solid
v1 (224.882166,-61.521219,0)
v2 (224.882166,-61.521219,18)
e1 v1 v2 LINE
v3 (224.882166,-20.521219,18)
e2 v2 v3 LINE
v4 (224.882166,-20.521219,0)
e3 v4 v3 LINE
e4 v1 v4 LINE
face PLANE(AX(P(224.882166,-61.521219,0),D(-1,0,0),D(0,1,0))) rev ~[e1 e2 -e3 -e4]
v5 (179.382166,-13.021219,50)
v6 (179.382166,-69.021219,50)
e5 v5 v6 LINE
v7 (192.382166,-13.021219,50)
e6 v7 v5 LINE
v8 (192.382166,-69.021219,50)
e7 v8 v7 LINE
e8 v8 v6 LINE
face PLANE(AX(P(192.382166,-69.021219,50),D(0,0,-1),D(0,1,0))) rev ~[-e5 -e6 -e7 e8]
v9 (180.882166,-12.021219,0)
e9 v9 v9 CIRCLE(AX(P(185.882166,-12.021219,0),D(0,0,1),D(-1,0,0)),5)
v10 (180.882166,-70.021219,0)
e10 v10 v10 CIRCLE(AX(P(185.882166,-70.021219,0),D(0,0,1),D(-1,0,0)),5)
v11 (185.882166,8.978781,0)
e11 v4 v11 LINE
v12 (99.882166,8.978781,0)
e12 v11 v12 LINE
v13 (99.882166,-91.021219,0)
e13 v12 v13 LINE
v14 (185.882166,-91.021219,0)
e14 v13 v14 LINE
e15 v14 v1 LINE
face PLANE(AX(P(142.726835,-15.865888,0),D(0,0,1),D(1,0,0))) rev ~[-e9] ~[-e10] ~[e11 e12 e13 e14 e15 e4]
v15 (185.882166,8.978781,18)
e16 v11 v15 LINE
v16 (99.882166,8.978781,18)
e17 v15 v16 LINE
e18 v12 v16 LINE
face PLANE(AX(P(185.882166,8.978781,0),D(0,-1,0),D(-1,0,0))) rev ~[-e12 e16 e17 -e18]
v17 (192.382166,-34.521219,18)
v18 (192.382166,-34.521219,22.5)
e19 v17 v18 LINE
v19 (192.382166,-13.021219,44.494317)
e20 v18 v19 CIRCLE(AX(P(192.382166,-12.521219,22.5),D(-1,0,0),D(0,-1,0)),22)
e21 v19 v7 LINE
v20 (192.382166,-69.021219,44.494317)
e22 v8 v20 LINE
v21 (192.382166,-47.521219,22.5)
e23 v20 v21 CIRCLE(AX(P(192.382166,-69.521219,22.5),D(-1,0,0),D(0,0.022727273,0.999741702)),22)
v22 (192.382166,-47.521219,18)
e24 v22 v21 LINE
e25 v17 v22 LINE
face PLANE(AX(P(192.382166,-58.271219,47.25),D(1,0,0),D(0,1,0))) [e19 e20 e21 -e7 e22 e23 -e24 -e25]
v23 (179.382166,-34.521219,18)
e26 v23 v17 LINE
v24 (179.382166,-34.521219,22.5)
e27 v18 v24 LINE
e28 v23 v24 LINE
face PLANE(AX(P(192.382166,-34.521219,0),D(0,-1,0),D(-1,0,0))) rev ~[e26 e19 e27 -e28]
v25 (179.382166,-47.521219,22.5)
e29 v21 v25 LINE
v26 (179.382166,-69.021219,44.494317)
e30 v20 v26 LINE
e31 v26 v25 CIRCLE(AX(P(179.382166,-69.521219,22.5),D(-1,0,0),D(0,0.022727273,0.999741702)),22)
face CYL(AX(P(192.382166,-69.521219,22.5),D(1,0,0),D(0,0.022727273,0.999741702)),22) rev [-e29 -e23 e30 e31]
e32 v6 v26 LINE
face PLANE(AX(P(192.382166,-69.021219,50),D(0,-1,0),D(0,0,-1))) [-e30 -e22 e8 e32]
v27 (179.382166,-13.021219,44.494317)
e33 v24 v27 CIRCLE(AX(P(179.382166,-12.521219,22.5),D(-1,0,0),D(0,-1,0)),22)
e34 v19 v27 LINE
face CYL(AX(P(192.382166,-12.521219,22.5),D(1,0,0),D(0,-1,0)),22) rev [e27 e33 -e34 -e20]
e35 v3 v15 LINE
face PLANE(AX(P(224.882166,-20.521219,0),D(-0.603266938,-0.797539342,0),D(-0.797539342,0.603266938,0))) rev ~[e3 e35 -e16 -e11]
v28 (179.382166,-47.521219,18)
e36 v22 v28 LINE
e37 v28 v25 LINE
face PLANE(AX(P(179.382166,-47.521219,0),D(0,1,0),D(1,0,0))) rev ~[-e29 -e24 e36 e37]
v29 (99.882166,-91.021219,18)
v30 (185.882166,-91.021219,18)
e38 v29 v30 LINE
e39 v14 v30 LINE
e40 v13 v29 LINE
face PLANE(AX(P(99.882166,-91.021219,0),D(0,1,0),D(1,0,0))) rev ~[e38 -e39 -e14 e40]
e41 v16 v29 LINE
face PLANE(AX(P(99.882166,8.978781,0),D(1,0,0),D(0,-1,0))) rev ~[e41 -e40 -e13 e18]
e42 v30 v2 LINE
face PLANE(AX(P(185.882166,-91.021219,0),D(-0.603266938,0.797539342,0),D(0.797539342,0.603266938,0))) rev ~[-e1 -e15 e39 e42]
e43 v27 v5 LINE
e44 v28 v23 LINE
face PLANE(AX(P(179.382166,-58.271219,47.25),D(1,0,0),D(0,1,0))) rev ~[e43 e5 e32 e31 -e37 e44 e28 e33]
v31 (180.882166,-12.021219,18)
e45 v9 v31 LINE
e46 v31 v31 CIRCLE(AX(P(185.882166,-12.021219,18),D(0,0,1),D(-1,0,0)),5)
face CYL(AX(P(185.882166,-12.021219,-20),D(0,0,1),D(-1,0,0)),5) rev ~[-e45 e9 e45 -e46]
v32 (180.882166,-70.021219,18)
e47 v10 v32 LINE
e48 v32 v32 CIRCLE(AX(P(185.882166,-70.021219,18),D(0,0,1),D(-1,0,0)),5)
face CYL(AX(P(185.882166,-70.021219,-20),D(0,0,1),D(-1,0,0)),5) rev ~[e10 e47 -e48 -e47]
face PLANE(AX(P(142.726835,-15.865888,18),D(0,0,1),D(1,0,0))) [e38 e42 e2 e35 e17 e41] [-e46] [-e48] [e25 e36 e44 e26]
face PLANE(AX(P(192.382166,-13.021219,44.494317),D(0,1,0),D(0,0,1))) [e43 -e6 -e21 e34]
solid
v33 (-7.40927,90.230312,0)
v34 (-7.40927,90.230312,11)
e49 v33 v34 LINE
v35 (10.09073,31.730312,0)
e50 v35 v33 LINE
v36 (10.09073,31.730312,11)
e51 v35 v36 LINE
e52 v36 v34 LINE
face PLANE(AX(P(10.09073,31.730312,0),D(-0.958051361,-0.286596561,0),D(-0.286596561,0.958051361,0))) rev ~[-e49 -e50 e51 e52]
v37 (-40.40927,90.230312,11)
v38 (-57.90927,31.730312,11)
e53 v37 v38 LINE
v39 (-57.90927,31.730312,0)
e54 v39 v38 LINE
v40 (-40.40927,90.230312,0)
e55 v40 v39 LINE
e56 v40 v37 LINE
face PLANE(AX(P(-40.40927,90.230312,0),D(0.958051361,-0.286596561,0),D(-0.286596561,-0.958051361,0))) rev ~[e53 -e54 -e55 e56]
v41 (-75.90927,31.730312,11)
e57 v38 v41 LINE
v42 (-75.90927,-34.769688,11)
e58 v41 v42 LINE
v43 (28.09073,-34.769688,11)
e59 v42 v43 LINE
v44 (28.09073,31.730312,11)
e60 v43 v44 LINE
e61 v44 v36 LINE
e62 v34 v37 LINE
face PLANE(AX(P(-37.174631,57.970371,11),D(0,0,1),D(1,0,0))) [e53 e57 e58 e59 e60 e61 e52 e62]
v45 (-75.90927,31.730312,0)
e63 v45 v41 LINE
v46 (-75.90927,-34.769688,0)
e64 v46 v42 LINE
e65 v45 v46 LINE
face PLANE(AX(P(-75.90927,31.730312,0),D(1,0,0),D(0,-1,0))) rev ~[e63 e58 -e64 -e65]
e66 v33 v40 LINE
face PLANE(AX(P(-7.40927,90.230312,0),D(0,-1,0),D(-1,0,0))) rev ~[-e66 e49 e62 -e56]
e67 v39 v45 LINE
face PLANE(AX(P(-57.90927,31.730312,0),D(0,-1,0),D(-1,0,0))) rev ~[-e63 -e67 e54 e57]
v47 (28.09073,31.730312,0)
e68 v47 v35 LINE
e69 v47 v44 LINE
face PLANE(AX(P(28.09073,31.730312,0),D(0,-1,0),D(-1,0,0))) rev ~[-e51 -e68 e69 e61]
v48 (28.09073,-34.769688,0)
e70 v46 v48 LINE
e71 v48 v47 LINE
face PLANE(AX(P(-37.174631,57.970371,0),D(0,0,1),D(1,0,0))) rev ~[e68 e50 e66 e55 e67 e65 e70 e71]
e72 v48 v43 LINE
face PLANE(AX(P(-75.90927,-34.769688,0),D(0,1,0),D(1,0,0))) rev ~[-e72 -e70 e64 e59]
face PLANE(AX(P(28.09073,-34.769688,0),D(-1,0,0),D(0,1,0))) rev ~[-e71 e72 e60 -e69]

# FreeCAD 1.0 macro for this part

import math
import FreeCAD as App
import Part
import Sketcher

V = App.Vector


def add_polygon(sketch, points):
    """Adds a closed chain of lines whose ends are joined by coincident constraints."""
    first, n = sketch.GeometryCount, len(points)
    for a, b in zip(points, points[1:] + points[:1]):
        sketch.addGeometry(Part.LineSegment(App.Vector(*a, 0), App.Vector(*b, 0)), False)
    for i in range(n):
        sketch.addConstraint(Sketcher.Constraint("Coincident", first + i, 2, first + (i + 1) % n, 1))

doc = App.newDocument("Part")
body = doc.addObject("PartDesign::Body", "Body")

# Sketch on XY plane
sketch1 = body.newObject("Sketcher::SketchObject", "Sketch")
sketch1.AttachmentSupport = (doc.getObject("XY_Plane"), [""])
sketch1.MapMode = "FlatFace"
add_polygon(sketch1, [(-40, 90), (-58, 32), (-76, 32), (-76, -35), (28, -35), (28, 32), (10, 32), (-7, 90)])  # lines 0-7
sketch1.addConstraint([
    Sketcher.Constraint("Horizontal", 1),
    Sketcher.Constraint("Vertical", 2),
    Sketcher.Constraint("Horizontal", 3),
    Sketcher.Constraint("Vertical", 4),
    Sketcher.Constraint("Horizontal", 5),
    Sketcher.Constraint("Horizontal", 7),
    Sketcher.Constraint("Horizontal", 1, 2, 4, 2),
    Sketcher.Constraint("Equal", 1, 5),
    Sketcher.Constraint("Equal", 0, 6),
    Sketcher.Constraint("DistanceX", 1, 2, 1, 1, 18.0),
    Sketcher.Constraint("DistanceX", 3, 1, 3, 2, 104.0),
    Sketcher.Constraint("DistanceX", 7, 2, 7, 1, 33.0),
    Sketcher.Constraint("DistanceY", 2, 2, 2, 1, 66.5),
    Sketcher.Constraint("DistanceY", 3, 2, 6, 2, 125.0),
    Sketcher.Constraint("DistanceX", 0, 2, -1, 1, 57.90927),
    Sketcher.Constraint("DistanceY", -1, 1, 0, 2, 31.730312),
])
pad1 = body.newObject("PartDesign::Pad", "Pad")
pad1.Profile = sketch1
pad1.Length = 11
body2 = doc.addObject("PartDesign::Body", "Body001")

# Sketch on XY plane
sketch2 = body2.newObject("Sketcher::SketchObject", "Sketch001")
sketch2.AttachmentSupport = (doc.getObject("XY_Plane001"), [""])
sketch2.MapMode = "FlatFace"
add_polygon(sketch2, [(186, 9), (100, 9), (100, -91), (186, -91), (225, -62), (225, -21)])  # lines 0-5
add_polygon(sketch2, [(192, -48), (179, -48), (179, -35), (192, -35)])  # lines 6-9
sketch2.addConstraint([
    Sketcher.Constraint("Horizontal", 0),
    Sketcher.Constraint("Vertical", 1),
    Sketcher.Constraint("Horizontal", 2),
    Sketcher.Constraint("Vertical", 4),
    Sketcher.Constraint("Horizontal", 6),
    Sketcher.Constraint("Vertical", 7),
    Sketcher.Constraint("Horizontal", 8),
    Sketcher.Constraint("Vertical", 9),
    Sketcher.Constraint("Vertical", 2, 2, 5, 2),
    Sketcher.Constraint("Equal", 8, 7),
    Sketcher.Constraint("Equal", 3, 5),
    Sketcher.Constraint("DistanceX", 0, 2, 0, 1, 86.0),
    Sketcher.Constraint("DistanceX", 6, 2, 6, 1, 13.0),
    Sketcher.Constraint("DistanceY", 1, 2, 1, 1, 100.0),
    Sketcher.Constraint("DistanceY", 4, 1, 4, 2, 41.0),
    Sketcher.Constraint("DistanceX", 2, 2, 3, 2, 39.0),
    Sketcher.Constraint("DistanceY", 3, 2, 6, 2, 14.0),
    Sketcher.Constraint("DistanceX", 6, 2, 2, 2, 6.5),
    Sketcher.Constraint("DistanceY", -1, 1, 0, 2, 8.978781),
    Sketcher.Constraint("DistanceX", -1, 1, 0, 2, 99.882166),
])
pad2 = body2.newObject("PartDesign::Pad", "Pad001")
pad2.Profile = sketch2
pad2.Length = 18

# Sketch on XY plane
sketch3 = body2.newObject("Sketcher::SketchObject", "Sketch002")
sketch3.AttachmentSupport = (doc.getObject("XY_Plane001"), [""])
sketch3.MapMode = "FlatFace"
add_polygon(sketch3, [(192, -35), (179, -35), (179, -48), (192, -48)])  # lines 0-3
sketch3.addConstraint([
    Sketcher.Constraint("Horizontal", 0),
    Sketcher.Constraint("Vertical", 1),
    Sketcher.Constraint("Horizontal", 2),
    Sketcher.Constraint("Vertical", 3),
    Sketcher.Constraint("Equal", 2, 1),
    Sketcher.Constraint("DistanceX", 0, 2, 0, 1, 13.0),
    Sketcher.Constraint("DistanceY", 0, 2, -1, 1, 34.521219),
    Sketcher.Constraint("DistanceX", -1, 1, 0, 2, 179.382166),
])
pad3 = body2.newObject("PartDesign::Pad", "Pad002")
pad3.Profile = sketch3
pad3.Length = 50

# Sketch on YZ plane
sketch4 = body2.newObject("Sketcher::SketchObject", "Sketch003")
sketch4.AttachmentSupport = (doc.getObject("YZ_Plane001"), [""])
sketch4.MapMode = "FlatFace"
sketch4.AttachmentOffset = App.Placement(V(0, 0, 192.382166), App.Rotation())
sketch4.addGeometry([
    Part.LineSegment(V(-69, 50, 0), V(-69, 44, 0)),  # 0
    Part.ArcOfCircle(Part.Circle(V(-70, 22, 0), V(0, 0, 1), 22), math.radians(0), math.radians(89)),  # 1
    Part.LineSegment(V(-48, 22, 0), V(-48, 50, 0)),  # 2
    Part.LineSegment(V(-48, 50, 0), V(-69, 50, 0)),  # 3
    Part.LineSegment(V(-35, 50, 0), V(-35, 22, 0)),  # 4
    Part.ArcOfCircle(Part.Circle(V(-13, 22, 0), V(0, 0, 1), 22), math.radians(91), math.radians(180)),  # 5
    Part.LineSegment(V(-13, 44, 0), V(-13, 50, 0)),  # 6
    Part.LineSegment(V(-13, 50, 0), V(-35, 50, 0)),  # 7
], False)
sketch4.addConstraint([
    Sketcher.Constraint("Coincident", 0, 2, 1, 2),
    Sketcher.Constraint("Tangent", 1, 1, 2, 1),
    Sketcher.Constraint("Coincident", 2, 2, 3, 1),
    Sketcher.Constraint("Coincident", 3, 2, 0, 1),
    Sketcher.Constraint("Tangent", 4, 2, 5, 2),
    Sketcher.Constraint("Coincident", 5, 1, 6, 1),
    Sketcher.Constraint("Coincident", 6, 2, 7, 1),
    Sketcher.Constraint("Coincident", 7, 2, 4, 1),
    Sketcher.Constraint("Vertical", 0),
    Sketcher.Constraint("Vertical", 2),
    Sketcher.Constraint("Horizontal", 3),
    Sketcher.Constraint("Vertical", 4),
    Sketcher.Constraint("Vertical", 6),
    Sketcher.Constraint("Horizontal", 7),
    Sketcher.Constraint("Equal", 1, 5),
    Sketcher.Constraint("Horizontal", 1, 3, 5, 3),
    Sketcher.Constraint("Horizontal", 0, 2, 5, 1),
    Sketcher.Constraint("Horizontal", 3, 2, 6, 2),
    Sketcher.Constraint("Radius", 1, 22.0),
    Sketcher.Constraint("DistanceX", 3, 2, 3, 1, 21.5),
    Sketcher.Constraint("DistanceY", 2, 1, 2, 2, 27.5),
    Sketcher.Constraint("DistanceY", -1, 1, 2, 2, 50.0),
    Sketcher.Constraint("DistanceX", 1, 3, 5, 3, 57.0),
    Sketcher.Constraint("DistanceX", 1, 3, -1, 1, 69.521219),
])
pad4 = body2.newObject("PartDesign::Pad", "Pad003")
pad4.Profile = sketch4
pad4.Length = 13
pad4.Reversed = True

# Sketch on XY plane
sketch5 = body2.newObject("Sketcher::SketchObject", "Sketch004")
sketch5.AttachmentSupport = (doc.getObject("XY_Plane001"), [""])
sketch5.MapMode = "FlatFace"
sketch5.addGeometry([
    Part.Circle(V(186, -70, 0), V(0, 0, 1), 5),
    Part.Circle(V(186, -12, 0), V(0, 0, 1), 5),
], False)
sketch5.addConstraint([
    Sketcher.Constraint("Equal", 0, 1),
    Sketcher.Constraint("Vertical", 0, 3, 1, 3),
    Sketcher.Constraint("Diameter", 0, 10.0),
    Sketcher.Constraint("DistanceY", 0, 3, 1, 3, 58.0),
    Sketcher.Constraint("DistanceY", 0, 3, -1, 1, 70.021219),
    Sketcher.Constraint("DistanceX", -1, 1, 0, 3, 185.882166),
])
doc.recompute()
hole = body2.newObject("PartDesign::Hole", "Hole")
hole.Profile = sketch5
hole.ThreadType = "None"
hole.Diameter = 10
hole.DepthType = "Dimension"
hole.Depth = 20
hole.DrillPoint = "Angled"
hole.DrillPointAngle = 118
hole.Reversed = True

doc.recompute()
